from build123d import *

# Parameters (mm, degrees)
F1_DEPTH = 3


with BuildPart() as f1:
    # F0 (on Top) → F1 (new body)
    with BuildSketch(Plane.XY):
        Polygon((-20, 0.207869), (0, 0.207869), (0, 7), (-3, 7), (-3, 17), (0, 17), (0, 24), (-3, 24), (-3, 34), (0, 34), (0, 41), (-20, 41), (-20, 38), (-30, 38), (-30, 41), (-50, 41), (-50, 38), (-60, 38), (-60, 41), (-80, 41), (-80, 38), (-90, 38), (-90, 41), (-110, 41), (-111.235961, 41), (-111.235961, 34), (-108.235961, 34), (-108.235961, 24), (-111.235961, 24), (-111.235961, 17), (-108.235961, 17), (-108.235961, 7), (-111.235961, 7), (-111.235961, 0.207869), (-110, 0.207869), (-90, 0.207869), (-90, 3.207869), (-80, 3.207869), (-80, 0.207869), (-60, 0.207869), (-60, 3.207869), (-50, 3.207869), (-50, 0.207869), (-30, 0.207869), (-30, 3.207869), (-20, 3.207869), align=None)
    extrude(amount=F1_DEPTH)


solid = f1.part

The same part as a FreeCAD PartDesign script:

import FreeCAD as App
import Part
import Sketcher
Q = App.Units.Quantity

doc = App.newDocument("Part")
body = doc.addObject("PartDesign::Body", "Body")

# Sketch on XY plane
sketch1 = body.newObject("Sketcher::SketchObject", "Sketch")
sketch1.AttachmentSupport = (doc.getObject("XY_Plane"), [""])
sketch1.MapMode = "FlatFace"
sketch1.addGeometry([
    Part.LineSegment(App.Vector(-20, 0.207869, 0), App.Vector(0, 0.207869, 0)),  # 0
    Part.LineSegment(App.Vector(0, 0.207869, 0), App.Vector(0, 7, 0)),  # 1
    Part.LineSegment(App.Vector(0, 7, 0), App.Vector(-3, 7, 0)),  # 2
    Part.LineSegment(App.Vector(-3, 7, 0), App.Vector(-3, 17, 0)),  # 3
    Part.LineSegment(App.Vector(-3, 17, 0), App.Vector(0, 17, 0)),  # 4
    Part.LineSegment(App.Vector(0, 17, 0), App.Vector(0, 24, 0)),  # 5
    Part.LineSegment(App.Vector(0, 24, 0), App.Vector(-3, 24, 0)),  # 6
    Part.LineSegment(App.Vector(-3, 24, 0), App.Vector(-3, 34, 0)),  # 7
    Part.LineSegment(App.Vector(-3, 34, 0), App.Vector(0, 34, 0)),  # 8
    Part.LineSegment(App.Vector(0, 34, 0), App.Vector(0, 41, 0)),  # 9
    Part.LineSegment(App.Vector(0, 41, 0), App.Vector(-20, 41, 0)),  # 10
    Part.LineSegment(App.Vector(-20, 41, 0), App.Vector(-20, 38, 0)),  # 11
    Part.LineSegment(App.Vector(-20, 38, 0), App.Vector(-30, 38, 0)),  # 12
    Part.LineSegment(App.Vector(-30, 38, 0), App.Vector(-30, 41, 0)),  # 13
    Part.LineSegment(App.Vector(-30, 41, 0), App.Vector(-50, 41, 0)),  # 14
    Part.LineSegment(App.Vector(-50, 41, 0), App.Vector(-50, 38, 0)),  # 15
    Part.LineSegment(App.Vector(-50, 38, 0), App.Vector(-60, 38, 0)),  # 16
    Part.LineSegment(App.Vector(-60, 38, 0), App.Vector(-60, 41, 0)),  # 17
    Part.LineSegment(App.Vector(-60, 41, 0), App.Vector(-80, 41, 0)),  # 18
    Part.LineSegment(App.Vector(-80, 41, 0), App.Vector(-80, 38, 0)),  # 19
    Part.LineSegment(App.Vector(-80, 38, 0), App.Vector(-90, 38, 0)),  # 20
    Part.LineSegment(App.Vector(-90, 38, 0), App.Vector(-90, 41, 0)),  # 21
    Part.LineSegment(App.Vector(-90, 41, 0), App.Vector(-111.235961, 41, 0)),  # 22
    Part.LineSegment(App.Vector(-111.235961, 41, 0), App.Vector(-111.235961, 34, 0)),  # 23
    Part.LineSegment(App.Vector(-111.235961, 34, 0), App.Vector(-108.235961, 34, 0)),  # 24
    Part.LineSegment(App.Vector(-108.235961, 34, 0), App.Vector(-108.235961, 24, 0)),  # 25
    Part.LineSegment(App.Vector(-108.235961, 24, 0), App.Vector(-111.235961, 24, 0)),  # 26
    Part.LineSegment(App.Vector(-111.235961, 24, 0), App.Vector(-111.235961, 17, 0)),  # 27
    Part.LineSegment(App.Vector(-111.235961, 17, 0), App.Vector(-108.235961, 17, 0)),  # 28
    Part.LineSegment(App.Vector(-108.235961, 17, 0), App.Vector(-108.235961, 7, 0)),  # 29
    Part.LineSegment(App.Vector(-108.235961, 7, 0), App.Vector(-111.235961, 7, 0)),  # 30
    Part.LineSegment(App.Vector(-111.235961, 7, 0), App.Vector(-111.235961, 0.207869, 0)),  # 31
    Part.LineSegment(App.Vector(-111.235961, 0.207869, 0), App.Vector(-90, 0.207869, 0)),  # 32
    Part.LineSegment(App.Vector(-90, 0.207869, 0), App.Vector(-90, 3.207869, 0)),  # 33
    Part.LineSegment(App.Vector(-90, 3.207869, 0), App.Vector(-80, 3.207869, 0)),  # 34
    Part.LineSegment(App.Vector(-80, 3.207869, 0), App.Vector(-80, 0.207869, 0)),  # 35
    Part.LineSegment(App.Vector(-80, 0.207869, 0), App.Vector(-60, 0.207869, 0)),  # 36
    Part.LineSegment(App.Vector(-60, 0.207869, 0), App.Vector(-60, 3.207869, 0)),  # 37
    Part.LineSegment(App.Vector(-60, 3.207869, 0), App.Vector(-50, 3.207869, 0)),  # 38
    Part.LineSegment(App.Vector(-50, 3.207869, 0), App.Vector(-50, 0.207869, 0)),  # 39
    Part.LineSegment(App.Vector(-50, 0.207869, 0), App.Vector(-30, 0.207869, 0)),  # 40
    Part.LineSegment(App.Vector(-30, 0.207869, 0), App.Vector(-30, 3.207869, 0)),  # 41
    Part.LineSegment(App.Vector(-30, 3.207869, 0), App.Vector(-20, 3.207869, 0)),  # 42
    Part.LineSegment(App.Vector(-20, 3.207869, 0), App.Vector(-20, 0.207869, 0)),  # 43
], False)
sketch1.addConstraint([
    Sketcher.Constraint("Coincident", 0, 2, 1, 1),
    Sketcher.Constraint("Coincident", 1, 2, 2, 1),
    Sketcher.Constraint("Coincident", 2, 2, 3, 1),
    Sketcher.Constraint("Coincident", 3, 2, 4, 1),
    Sketcher.Constraint("Coincident", 4, 2, 5, 1),
    Sketcher.Constraint("Coincident", 5, 2, 6, 1),
    Sketcher.Constraint("Coincident", 6, 2, 7, 1),
    Sketcher.Constraint("Coincident", 7, 2, 8, 1),
    Sketcher.Constraint("Coincident", 8, 2, 9, 1),
    Sketcher.Constraint("Coincident", 9, 2, 10, 1),
    Sketcher.Constraint("Coincident", 10, 2, 11, 1),
    Sketcher.Constraint("Coincident", 11, 2, 12, 1),
    Sketcher.Constraint("Coincident", 12, 2, 13, 1),
    Sketcher.Constraint("Coincident", 13, 2, 14, 1),
    Sketcher.Constraint("Coincident", 14, 2, 15, 1),
    Sketcher.Constraint("Coincident", 15, 2, 16, 1),
    Sketcher.Constraint("Coincident", 16, 2, 17, 1),
    Sketcher.Constraint("Coincident", 17, 2, 18, 1),
    Sketcher.Constraint("Coincident", 18, 2, 19, 1),
    Sketcher.Constraint("Coincident", 19, 2, 20, 1),
    Sketcher.Constraint("Coincident", 20, 2, 21, 1),
    Sketcher.Constraint("Coincident", 21, 2, 22, 1),
    Sketcher.Constraint("Coincident", 22, 2, 23, 1),
    Sketcher.Constraint("Coincident", 23, 2, 24, 1),
    Sketcher.Constraint("Coincident", 24, 2, 25, 1),
    Sketcher.Constraint("Coincident", 25, 2, 26, 1),
    Sketcher.Constraint("Coincident", 26, 2, 27, 1),
    Sketcher.Constraint("Coincident", 27, 2, 28, 1),
    Sketcher.Constraint("Coincident", 28, 2, 29, 1),
    Sketcher.Constraint("Coincident", 29, 2, 30, 1),
    Sketcher.Constraint("Coincident", 30, 2, 31, 1),
    Sketcher.Constraint("Coincident", 31, 2, 32, 1),
    Sketcher.Constraint("Coincident", 32, 2, 33, 1),
    Sketcher.Constraint("Coincident", 33, 2, 34, 1),
    Sketcher.Constraint("Coincident", 34, 2, 35, 1),
    Sketcher.Constraint("Coincident", 35, 2, 36, 1),
    Sketcher.Constraint("Coincident", 36, 2, 37, 1),
    Sketcher.Constraint("Coincident", 37, 2, 38, 1),
    Sketcher.Constraint("Coincident", 38, 2, 39, 1),
    Sketcher.Constraint("Coincident", 39, 2, 40, 1),
    Sketcher.Constraint("Coincident", 40, 2, 41, 1),
    Sketcher.Constraint("Coincident", 41, 2, 42, 1),
    Sketcher.Constraint("Coincident", 42, 2, 43, 1),
    Sketcher.Constraint("Coincident", 43, 2, 0, 1),
    Sketcher.Constraint("Horizontal", 0),
    Sketcher.Constraint("Vertical", 1),
    Sketcher.Constraint("Horizontal", 2),
    Sketcher.Constraint("Vertical", 3),
    Sketcher.Constraint("Horizontal", 4),
    Sketcher.Constraint("Vertical", 5),
    Sketcher.Constraint("Horizontal", 6),
    Sketcher.Constraint("Vertical", 7),
    Sketcher.Constraint("Horizontal", 8),
    Sketcher.Constraint("Vertical", 9),
    Sketcher.Constraint("Horizontal", 10),
    Sketcher.Constraint("Vertical", 11),
    Sketcher.Constraint("Horizontal", 12),
    Sketcher.Constraint("Vertical", 13),
    Sketcher.Constraint("Horizontal", 14),
    Sketcher.Constraint("Vertical", 15),
    Sketcher.Constraint("Horizontal", 16),
    Sketcher.Constraint("Vertical", 17),
    Sketcher.Constraint("Horizontal", 18),
    Sketcher.Constraint("Vertical", 19),
    Sketcher.Constraint("Horizontal", 20),
    Sketcher.Constraint("Vertical", 21),
    Sketcher.Constraint("Horizontal", 22),
    Sketcher.Constraint("Vertical", 23),
    Sketcher.Constraint("Horizontal", 24),
    Sketcher.Constraint("Vertical", 25),
    Sketcher.Constraint("Horizontal", 26),
    Sketcher.Constraint("Vertical", 27),
    Sketcher.Constraint("Horizontal", 28),
    Sketcher.Constraint("Vertical", 29),
    Sketcher.Constraint("Horizontal", 30),
    Sketcher.Constraint("Vertical", 31),
    Sketcher.Constraint("Horizontal", 32),
    Sketcher.Constraint("Vertical", 33),
    Sketcher.Constraint("Horizontal", 34),
    Sketcher.Constraint("Vertical", 35),
    Sketcher.Constraint("Horizontal", 36),
    Sketcher.Constraint("Vertical", 37),
    Sketcher.Constraint("Horizontal", 38),
    Sketcher.Constraint("Vertical", 39),
    Sketcher.Constraint("Horizontal", 40),
    Sketcher.Constraint("Vertical", 41),
    Sketcher.Constraint("Horizontal", 42),
    Sketcher.Constraint("Vertical", 43),
    Sketcher.Constraint("PointOnObject", 0, 2, -2),
    Sketcher.Constraint("PointOnObject", 4, 2, -2),
    Sketcher.Constraint("PointOnObject", 8, 2, -2),
    Sketcher.Constraint("Horizontal", 10, 2, 13, 2),
    Sketcher.Constraint("Horizontal", 12, 2, 15, 2),
    Sketcher.Constraint("Horizontal", 14, 2, 17, 2),
    Sketcher.Constraint("Horizontal", 16, 2, 19, 2),
    Sketcher.Constraint("Horizontal", 18, 2, 21, 2),
    Sketcher.Constraint("Horizontal", 8, 2, 23, 2),
    Sketcher.Constraint("Horizontal", 6, 2, 25, 2),
    Sketcher.Constraint("Horizontal", 4, 2, 27, 2),
    Sketcher.Constraint("Horizontal", 2, 2, 29, 2),
    Sketcher.Constraint("Horizontal", 0, 2, 31, 2),
    Sketcher.Constraint("Horizontal", 32, 2, 35, 2),
    Sketcher.Constraint("Horizontal", 34, 2, 37, 2),
    Sketcher.Constraint("Horizontal", 36, 2, 39, 2),
    Sketcher.Constraint("Horizontal", 38, 2, 41, 2),
    Sketcher.Constraint("Vertical", 3, 2, 6, 2),
    Sketcher.Constraint("Vertical", 23, 2, 26, 2),
    Sketcher.Constraint("Vertical", 25, 2, 28, 2),
    Sketcher.Constraint("Vertical", 27, 2, 30, 2),
    Sketcher.Constraint("Vertical", 21, 2, 32, 2),
    Sketcher.Constraint("Vertical", 19, 2, 34, 2),
    Sketcher.Constraint("Vertical", 17, 2, 36, 2),
    Sketcher.Constraint("Vertical", 15, 2, 38, 2),
    Sketcher.Constraint("Vertical", 13, 2, 40, 2),
    Sketcher.Constraint("Vertical", 11, 2, 42, 2),
    Sketcher.Constraint("Equal", 10, 14),
    Sketcher.Constraint("Equal", 12, 16),
    Sketcher.Constraint("Equal", 14, 18),
    Sketcher.Constraint("Equal", 16, 20),
    Sketcher.Constraint("Equal", 8, 24),
    Sketcher.Constraint("Equal", 42, 3),
    Sketcher.Constraint("Equal", 3, 7),
    Sketcher.Constraint("Equal", 5, 9),
    Sketcher.Constraint("Equal", 30, 11),
    Sketcher.Constraint("Equal", 21, 33),
    Sketcher.Constraint("DistanceX", 0, 1, 0, 2, Q("20 mm")),
    Sketcher.Constraint("DistanceX", 2, 2, 2, 1, Q("3 mm")),
    Sketcher.Constraint("DistanceX", 12, 2, 12, 1, Q("10 mm")),
    Sketcher.Constraint("DistanceY", 5, 1, 5, 2, Q("7 mm")),
    Sketcher.Constraint("DistanceY", -1, 1, 1, 2, Q("7 mm")),
    Sketcher.Constraint("DistanceX", 22, 2, 22, 1, Q("21.235961 mm")),
    Sketcher.Constraint("DistanceY", 1, 1, 1, 2, Q("6.792131 mm")),
])
pad1 = body.newObject("PartDesign::Pad", "Pad")
pad1.Profile = sketch1
pad1.Length = 3

doc.recompute()
